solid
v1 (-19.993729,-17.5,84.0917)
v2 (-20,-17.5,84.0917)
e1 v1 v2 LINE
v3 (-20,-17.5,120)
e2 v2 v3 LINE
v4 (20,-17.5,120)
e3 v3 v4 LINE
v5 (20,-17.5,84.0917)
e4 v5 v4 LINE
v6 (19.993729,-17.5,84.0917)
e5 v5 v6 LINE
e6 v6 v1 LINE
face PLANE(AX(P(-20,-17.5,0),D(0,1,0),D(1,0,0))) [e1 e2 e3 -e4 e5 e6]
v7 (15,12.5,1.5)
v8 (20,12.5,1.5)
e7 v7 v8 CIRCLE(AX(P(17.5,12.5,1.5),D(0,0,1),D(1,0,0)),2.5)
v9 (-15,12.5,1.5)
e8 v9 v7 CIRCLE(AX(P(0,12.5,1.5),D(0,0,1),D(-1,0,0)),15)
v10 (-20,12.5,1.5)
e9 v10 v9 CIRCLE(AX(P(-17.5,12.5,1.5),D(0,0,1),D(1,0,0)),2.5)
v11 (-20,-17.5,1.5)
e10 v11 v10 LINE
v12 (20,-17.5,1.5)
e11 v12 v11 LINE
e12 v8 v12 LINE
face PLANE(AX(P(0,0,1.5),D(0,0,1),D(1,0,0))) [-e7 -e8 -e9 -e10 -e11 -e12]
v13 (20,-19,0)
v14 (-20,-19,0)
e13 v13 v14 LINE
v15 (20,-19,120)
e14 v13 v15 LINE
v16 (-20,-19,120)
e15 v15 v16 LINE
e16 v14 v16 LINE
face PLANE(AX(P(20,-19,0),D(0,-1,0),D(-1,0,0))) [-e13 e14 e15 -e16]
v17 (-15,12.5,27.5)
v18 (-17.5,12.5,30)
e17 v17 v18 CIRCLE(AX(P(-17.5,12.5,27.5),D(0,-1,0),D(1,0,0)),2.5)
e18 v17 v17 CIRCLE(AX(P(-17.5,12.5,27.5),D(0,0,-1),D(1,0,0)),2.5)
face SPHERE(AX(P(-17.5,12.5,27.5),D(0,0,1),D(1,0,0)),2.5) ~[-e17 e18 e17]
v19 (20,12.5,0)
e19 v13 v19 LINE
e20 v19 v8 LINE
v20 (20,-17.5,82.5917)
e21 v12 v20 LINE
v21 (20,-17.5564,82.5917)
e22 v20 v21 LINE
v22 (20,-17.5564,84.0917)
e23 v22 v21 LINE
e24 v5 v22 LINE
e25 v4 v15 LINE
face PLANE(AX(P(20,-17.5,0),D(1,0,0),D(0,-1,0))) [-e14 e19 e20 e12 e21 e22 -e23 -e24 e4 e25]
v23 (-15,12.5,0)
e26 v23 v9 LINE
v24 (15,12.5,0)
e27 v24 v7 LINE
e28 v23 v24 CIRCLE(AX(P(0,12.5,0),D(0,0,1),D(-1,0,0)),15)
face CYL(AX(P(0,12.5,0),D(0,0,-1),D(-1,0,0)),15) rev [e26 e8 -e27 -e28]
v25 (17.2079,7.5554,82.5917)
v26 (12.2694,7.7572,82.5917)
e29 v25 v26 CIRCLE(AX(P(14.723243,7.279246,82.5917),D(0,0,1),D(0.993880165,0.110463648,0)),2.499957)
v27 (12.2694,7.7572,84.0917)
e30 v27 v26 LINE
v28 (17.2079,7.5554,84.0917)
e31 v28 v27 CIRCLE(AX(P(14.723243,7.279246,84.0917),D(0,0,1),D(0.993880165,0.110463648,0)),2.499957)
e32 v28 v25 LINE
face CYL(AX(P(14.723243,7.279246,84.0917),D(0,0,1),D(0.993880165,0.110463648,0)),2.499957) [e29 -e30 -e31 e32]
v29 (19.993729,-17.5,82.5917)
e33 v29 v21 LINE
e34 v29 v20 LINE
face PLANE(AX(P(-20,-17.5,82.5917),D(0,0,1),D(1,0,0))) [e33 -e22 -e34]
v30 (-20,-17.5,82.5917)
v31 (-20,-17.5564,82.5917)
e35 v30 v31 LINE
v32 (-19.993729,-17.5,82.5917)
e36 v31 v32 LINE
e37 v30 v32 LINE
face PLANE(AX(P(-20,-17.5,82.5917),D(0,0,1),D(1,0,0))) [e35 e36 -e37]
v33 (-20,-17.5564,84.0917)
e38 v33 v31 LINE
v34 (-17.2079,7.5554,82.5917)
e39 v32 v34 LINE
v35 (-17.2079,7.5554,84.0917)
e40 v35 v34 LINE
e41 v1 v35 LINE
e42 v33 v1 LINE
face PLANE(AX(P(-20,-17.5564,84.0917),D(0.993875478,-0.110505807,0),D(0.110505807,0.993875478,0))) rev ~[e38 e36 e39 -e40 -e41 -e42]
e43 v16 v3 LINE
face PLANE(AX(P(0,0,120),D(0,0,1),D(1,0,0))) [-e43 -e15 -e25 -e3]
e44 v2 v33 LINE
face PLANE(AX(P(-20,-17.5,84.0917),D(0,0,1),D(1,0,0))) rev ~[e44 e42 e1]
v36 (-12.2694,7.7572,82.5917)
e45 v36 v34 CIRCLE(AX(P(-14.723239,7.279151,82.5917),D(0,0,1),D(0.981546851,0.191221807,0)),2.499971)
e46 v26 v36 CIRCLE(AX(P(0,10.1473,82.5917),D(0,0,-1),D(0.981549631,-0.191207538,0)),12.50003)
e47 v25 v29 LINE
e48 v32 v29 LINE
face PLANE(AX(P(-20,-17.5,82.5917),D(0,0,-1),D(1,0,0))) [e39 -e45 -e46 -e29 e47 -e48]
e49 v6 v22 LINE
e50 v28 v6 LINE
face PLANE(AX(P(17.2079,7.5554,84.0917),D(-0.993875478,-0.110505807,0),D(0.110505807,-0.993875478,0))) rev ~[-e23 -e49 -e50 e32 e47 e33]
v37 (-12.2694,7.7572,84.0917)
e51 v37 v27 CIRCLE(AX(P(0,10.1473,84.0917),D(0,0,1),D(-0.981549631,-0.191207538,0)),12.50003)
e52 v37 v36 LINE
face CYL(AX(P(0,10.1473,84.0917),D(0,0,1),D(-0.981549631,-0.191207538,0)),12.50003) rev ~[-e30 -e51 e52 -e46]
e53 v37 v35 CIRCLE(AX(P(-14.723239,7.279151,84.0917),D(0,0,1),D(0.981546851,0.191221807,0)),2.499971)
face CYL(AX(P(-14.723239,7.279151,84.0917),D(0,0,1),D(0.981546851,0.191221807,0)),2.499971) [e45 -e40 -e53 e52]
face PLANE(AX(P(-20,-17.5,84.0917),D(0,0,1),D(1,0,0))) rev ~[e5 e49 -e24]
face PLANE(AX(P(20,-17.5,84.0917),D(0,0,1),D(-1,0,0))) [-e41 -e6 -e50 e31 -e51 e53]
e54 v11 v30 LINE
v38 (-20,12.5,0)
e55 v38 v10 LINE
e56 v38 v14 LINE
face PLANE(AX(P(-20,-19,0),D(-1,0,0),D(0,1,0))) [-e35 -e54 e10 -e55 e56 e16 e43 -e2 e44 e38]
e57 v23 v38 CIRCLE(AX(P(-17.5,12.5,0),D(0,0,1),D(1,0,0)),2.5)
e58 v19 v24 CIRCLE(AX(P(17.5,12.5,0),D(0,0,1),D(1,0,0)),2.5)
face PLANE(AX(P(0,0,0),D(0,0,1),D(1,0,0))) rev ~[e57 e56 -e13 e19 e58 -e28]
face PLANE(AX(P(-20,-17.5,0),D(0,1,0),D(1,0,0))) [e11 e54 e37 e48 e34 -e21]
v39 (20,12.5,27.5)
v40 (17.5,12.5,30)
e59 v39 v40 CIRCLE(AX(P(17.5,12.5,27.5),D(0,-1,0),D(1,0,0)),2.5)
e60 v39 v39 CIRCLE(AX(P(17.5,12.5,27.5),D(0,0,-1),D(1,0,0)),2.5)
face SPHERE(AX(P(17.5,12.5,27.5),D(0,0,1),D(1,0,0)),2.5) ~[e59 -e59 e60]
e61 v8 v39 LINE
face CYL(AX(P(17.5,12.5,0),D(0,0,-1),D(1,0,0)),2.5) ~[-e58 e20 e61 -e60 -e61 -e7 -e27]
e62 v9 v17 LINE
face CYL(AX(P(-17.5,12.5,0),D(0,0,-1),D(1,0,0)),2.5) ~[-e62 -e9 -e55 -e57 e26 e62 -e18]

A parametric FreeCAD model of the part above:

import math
import FreeCAD as App
import Part
import Sketcher

V = App.Vector
Q = App.Units.Quantity


def edges_at(feature, points):
    """Names of the edges that pass closest to the given points."""
    edges = feature.Shape.Edges
    near = lambda p: min(range(len(edges)), key=lambda i: edges[i].distToShape(Part.Vertex(*p))[0])
    return sorted({f"Edge{near(p) + 1}" for p in points})


def add_polygon(sketch, points):
    """Adds a closed chain of lines whose ends are joined by coincident constraints."""
    first, n = sketch.GeometryCount, len(points)
    for a, b in zip(points, points[1:] + points[:1]):
        sketch.addGeometry(Part.LineSegment(App.Vector(*a, 0), App.Vector(*b, 0)), False)
    for i in range(n):
        sketch.addConstraint(Sketcher.Constraint("Coincident", first + i, 2, first + (i + 1) % n, 1))

doc = App.newDocument("Part")
params = doc.addObject("Spreadsheet::Sheet", "Params")
for row, (alias, value) in enumerate([
    ("sketch1_radius", "15 mm"),
    ("sketch1_radius2", "2.5 mm"),
    ("sketch1_height", "30 mm"),
    ("pad1_length", "1.5 mm"),
    ("sketch2_diameter", "5 mm"),
    ("pad2_length", "30 mm"),
    ("fillet_radius", "2.5 mm"),
    ("sketch3_height", "1.5 mm"),
    ("sketch3_width", "40 mm"),
    ("pad3_length", "120 mm"),
    ("sketch4_height", "1.5 mm"),
    ("sketch4_width", "40 mm"),
    ("pad4_length", "30 mm"),
    ("sketch5_radius", "2.5 mm"),
    ("sketch5_radius2", "12.5 mm"),
    ("sketch5_radius3", "2.5 mm"),
    ("sketch5_width", "40 mm"),
    ("sketch5_height", "2.39 mm"),
    ("pocket1_length", "1.5 mm"),
], start=1):
    params.set(f"A{row}", alias)
    params.set(f"B{row}", "=" + value)
    params.setAlias(f"B{row}", alias)

body = doc.addObject("PartDesign::Body", "Body")

# Sketch on XY plane
sketch1 = body.newObject("Sketcher::SketchObject", "Sketch")
sketch1.AttachmentSupport = (doc.getObject("XY_Plane"), [""])
sketch1.MapMode = "FlatFace"
sketch1.addGeometry(Part.LineSegment(V(20, -17.5, 0), V(20, 12.5, 0)), False)
sketch1.addGeometry(Part.ArcOfCircle(Part.Circle(V(17.5, 12.5, 0), V(0, 0, 1), 2.5), math.radians(180), math.radians(360)), False)
sketch1.addGeometry(Part.ArcOfCircle(Part.Circle(V(0, 12.5, 0), V(0, 0, 1), 15), math.radians(180), math.radians(360)), False)
sketch1.addGeometry(Part.ArcOfCircle(Part.Circle(V(-17.5, 12.5, 0), V(0, 0, 1), 2.5), math.radians(180), math.radians(360)), False)
sketch1.addGeometry(Part.LineSegment(V(-20, 12.5, 0), V(-20, -17.5, 0)), False)
sketch1.addGeometry(Part.LineSegment(V(-20, -17.5, 0), V(20, -17.5, 0)), False)
sketch1.addConstraint(Sketcher.Constraint("Tangent", 0, 2, 1, 2))
sketch1.addConstraint(Sketcher.Constraint("Tangent", 1, 1, 2, 2))
sketch1.addConstraint(Sketcher.Constraint("Tangent", 2, 1, 3, 2))
sketch1.addConstraint(Sketcher.Constraint("Tangent", 3, 1, 4, 1))
sketch1.addConstraint(Sketcher.Constraint("Coincident", 4, 2, 5, 1))
sketch1.addConstraint(Sketcher.Constraint("Coincident", 5, 2, 0, 1))
sketch1.addConstraint(Sketcher.Constraint("Vertical", 0))
sketch1.addConstraint(Sketcher.Constraint("Vertical", 4))
sketch1.addConstraint(Sketcher.Constraint("Horizontal", 5))
sketch1.addConstraint(Sketcher.Constraint("Equal", 1, 3))
sketch1.addConstraint(Sketcher.Constraint("Symmetric", 1, 3, 3, 3, -2))
sketch1.addConstraint(Sketcher.Constraint("Horizontal", 1, 3, 2, 3))
sketch1.addConstraint(Sketcher.Constraint("Radius", 2, Q("15 mm")))
sketch1.addConstraint(Sketcher.Constraint("Radius", 1, Q("2.5 mm")))
sketch1.addConstraint(Sketcher.Constraint("DistanceY", 0, 1, 0, 2, Q("30 mm")))
sketch1.addConstraint(Sketcher.Constraint("DistanceY", 4, 2, -1, 1, Q("17.5 mm")))
sketch1.setExpression("Constraints[12]", "Params.sketch1_radius")
sketch1.setExpression("Constraints[13]", "Params.sketch1_radius2")
sketch1.setExpression("Constraints[14]", "Params.sketch1_height")
pad1 = body.newObject("PartDesign::Pad", "Pad")
pad1.Profile = sketch1
pad1.setExpression("Length", "Params.pad1_length")

# Sketch on XY plane
sketch2 = body.newObject("Sketcher::SketchObject", "Sketch001")
sketch2.AttachmentSupport = (doc.getObject("XY_Plane"), [""])
sketch2.MapMode = "FlatFace"
sketch2.addGeometry(Part.Circle(V(17.5, 12.5, 0), V(0, 0, 1), 2.5), False)
sketch2.addGeometry(Part.Circle(V(-17.5, 12.5, 0), V(0, 0, 1), 2.5), False)
sketch2.addConstraint(Sketcher.Constraint("Equal", 0, 1))
sketch2.addConstraint(Sketcher.Constraint("Symmetric", 0, 3, 1, 3, -2))
sketch2.addConstraint(Sketcher.Constraint("Diameter", 0, Q("5 mm")))
sketch2.addConstraint(Sketcher.Constraint("DistanceX", -1, 1, 0, 3, Q("17.5 mm")))
sketch2.addConstraint(Sketcher.Constraint("DistanceY", -1, 1, 0, 3, Q("12.5 mm")))
sketch2.setExpression("Constraints[2]", "Params.sketch2_diameter")
pad2 = body.newObject("PartDesign::Pad", "Pad001")
pad2.Profile = sketch2
pad2.setExpression("Length", "Params.pad2_length")
doc.recompute()

fillet = body.newObject("PartDesign::Fillet", "Fillet")
fillet.Base = (pad2, edges_at(pad2, [(-20, 12.5, 30), (15, 12.5, 30)]))
fillet.setExpression("Radius", "Params.fillet_radius")

# Sketch on XY plane
sketch3 = body.newObject("Sketcher::SketchObject", "Sketch002")
sketch3.AttachmentSupport = (doc.getObject("XY_Plane"), [""])
sketch3.MapMode = "FlatFace"
add_polygon(sketch3, [(20, -17.5), (-20, -17.5), (-20, -19), (20, -19)])  # lines 0-3
sketch3.addConstraint(Sketcher.Constraint("Horizontal", 0))
sketch3.addConstraint(Sketcher.Constraint("Vertical", 1))
sketch3.addConstraint(Sketcher.Constraint("Horizontal", 2))
sketch3.addConstraint(Sketcher.Constraint("Vertical", 3))
sketch3.addConstraint(Sketcher.Constraint("DistanceY", 1, 2, 1, 1, Q("1.5 mm")))
sketch3.addConstraint(Sketcher.Constraint("DistanceX", 0, 2, 0, 1, Q("40 mm")))
sketch3.addConstraint(Sketcher.Constraint("DistanceX", 0, 2, -1, 1, Q("20 mm")))
sketch3.addConstraint(Sketcher.Constraint("DistanceY", 1, 2, -1, 1, Q("19 mm")))
sketch3.setExpression("Constraints[8]", "Params.sketch3_height")
sketch3.setExpression("Constraints[9]", "Params.sketch3_width")
pad3 = body.newObject("PartDesign::Pad", "Pad002")
pad3.Profile = sketch3
pad3.setExpression("Length", "Params.pad3_length")

# Sketch on XZ plane
sketch4 = body.newObject("Sketcher::SketchObject", "Sketch003")
sketch4.AttachmentSupport = (doc.getObject("XZ_Plane"), [""])
sketch4.MapMode = "FlatFace"
sketch4.AttachmentOffset = App.Placement(V(0, 0, 17.5), App.Rotation())
add_polygon(sketch4, [(20, 82.6), (-20, 82.6), (-20, 84.1), (20, 84.1)])  # lines 0-3
sketch4.addConstraint(Sketcher.Constraint("Horizontal", 0))
sketch4.addConstraint(Sketcher.Constraint("Vertical", 1))
sketch4.addConstraint(Sketcher.Constraint("Horizontal", 2))
sketch4.addConstraint(Sketcher.Constraint("Vertical", 3))
sketch4.addConstraint(Sketcher.Constraint("DistanceY", 1, 1, 1, 2, Q("1.5 mm")))
sketch4.addConstraint(Sketcher.Constraint("DistanceX", 0, 2, 0, 1, Q("40 mm")))
sketch4.addConstraint(Sketcher.Constraint("DistanceX", 0, 2, -1, 1, Q("20 mm")))
sketch4.addConstraint(Sketcher.Constraint("DistanceY", -1, 1, 0, 2, Q("82.5917 mm")))
sketch4.setExpression("Constraints[8]", "Params.sketch4_height")
sketch4.setExpression("Constraints[9]", "Params.sketch4_width")
pad4 = body.newObject("PartDesign::Pad", "Pad003")
pad4.Profile = sketch4
pad4.setExpression("Length", "Params.pad4_length")
pad4.Reversed = True

# Sketch on XY plane
sketch5 = body.newObject("Sketcher::SketchObject", "Sketch004")
sketch5.AttachmentSupport = (doc.getObject("XY_Plane"), [""])
sketch5.MapMode = "FlatFace"
sketch5.AttachmentOffset = App.Placement(V(0, 0, 84.0917), App.Rotation())
sketch5.addGeometry(Part.LineSegment(V(-20, 12.5, 0), V(-20, -17.5564, 0)), False)
sketch5.addGeometry(Part.LineSegment(V(-20, -17.5564, 0), V(-17.2079, 7.5554, 0)), False)
sketch5.addGeometry(Part.ArcOfCircle(Part.Circle(V(-14.7232, 7.2792, 0), V(0, 0, 1), 2.499924), math.radians(11.023164), math.radians(173.657024)), False)
sketch5.addGeometry(Part.ArcOfCircle(Part.Circle(V(0, 10.1473, 0), V(0, 0, 1), 12.50003), math.radians(-168.976737), math.radians(-11.023263)), False)
sketch5.addGeometry(Part.ArcOfCircle(Part.Circle(V(14.7232, 7.2792, 0), V(0, 0, 1), 2.500004), math.radians(6.342976), math.radians(168.976836)), False)
sketch5.addGeometry(Part.LineSegment(V(17.2079, 7.5554, 0), V(20, -17.5564, 0)), False)
sketch5.addGeometry(Part.LineSegment(V(20, -17.5564, 0), V(20, 12.5, 0)), False)
sketch5.addGeometry(Part.LineSegment(V(20, 12.5, 0), V(-20, 12.5, 0)), False)
sketch5.addConstraint(Sketcher.Constraint("Coincident", 0, 2, 1, 1))
sketch5.addConstraint(Sketcher.Constraint("Coincident", 1, 2, 2, 2))
sketch5.addConstraint(Sketcher.Constraint("Coincident", 2, 1, 3, 1))
sketch5.addConstraint(Sketcher.Constraint("Coincident", 3, 2, 4, 2))
sketch5.addConstraint(Sketcher.Constraint("Coincident", 4, 1, 5, 1))
sketch5.addConstraint(Sketcher.Constraint("Coincident", 5, 2, 6, 1))
sketch5.addConstraint(Sketcher.Constraint("Coincident", 6, 2, 7, 1))
sketch5.addConstraint(Sketcher.Constraint("Coincident", 7, 2, 0, 1))
sketch5.addConstraint(Sketcher.Constraint("Vertical", 0))
sketch5.addConstraint(Sketcher.Constraint("Vertical", 6))
sketch5.addConstraint(Sketcher.Constraint("Horizontal", 7))
sketch5.addConstraint(Sketcher.Constraint("PointOnObject", 3, 3, -2))
sketch5.addConstraint(Sketcher.Constraint("Radius", 2, Q("2.5 mm")))
sketch5.addConstraint(Sketcher.Constraint("Radius", 3, Q("12.5 mm")))
sketch5.addConstraint(Sketcher.Constraint("Radius", 4, Q("2.5 mm")))
sketch5.addConstraint(Sketcher.Constraint("DistanceY", -1, 1, 6, 2, Q("12.5 mm")))
sketch5.addConstraint(Sketcher.Constraint("DistanceX", 7, 2, 7, 1, Q("40 mm")))
sketch5.addConstraint(Sketcher.Constraint("DistanceY", 0, 2, 0, 1, Q("30.0564 mm")))
sketch5.addConstraint(Sketcher.Constraint("DistanceY", 6, 1, 6, 2, Q("30.0564 mm")))
sketch5.addConstraint(Sketcher.Constraint("DistanceX", 0, 2, -1, 1, Q("20 mm")))
sketch5.addConstraint(Sketcher.Constraint("DistanceX", 2, 3, 4, 3, Q("29.4464 mm")))
sketch5.addConstraint(Sketcher.Constraint("DistanceY", 2, 1, 3, 3, Q("2.39 mm")))
sketch5.addConstraint(Sketcher.Constraint("DistanceY", 3, 2, 3, 3, Q("2.39 mm")))
sketch5.addConstraint(Sketcher.Constraint("DistanceX", 1, 2, -1, 1, Q("17.208 mm")))
sketch5.addConstraint(Sketcher.Constraint("DistanceX", -1, 1, 4, 1, Q("17.208 mm")))
sketch5.addConstraint(Sketcher.Constraint("DistanceY", 2, 3, 3, 3, Q("2.868 mm")))
sketch5.addConstraint(Sketcher.Constraint("Distance", 1, Q("25.2665 mm")))
sketch5.setExpression("Constraints[12]", "Params.sketch5_radius")
sketch5.setExpression("Constraints[13]", "Params.sketch5_radius2")
sketch5.setExpression("Constraints[14]", "Params.sketch5_radius3")
sketch5.setExpression("Constraints[16]", "Params.sketch5_width")
sketch5.setExpression("Constraints[22]", "Params.sketch5_height")
pocket1 = body.newObject("PartDesign::Pocket", "Pocket")
pocket1.Profile = sketch5
pocket1.setExpression("Length", "Params.pocket1_length")

doc.recompute()
